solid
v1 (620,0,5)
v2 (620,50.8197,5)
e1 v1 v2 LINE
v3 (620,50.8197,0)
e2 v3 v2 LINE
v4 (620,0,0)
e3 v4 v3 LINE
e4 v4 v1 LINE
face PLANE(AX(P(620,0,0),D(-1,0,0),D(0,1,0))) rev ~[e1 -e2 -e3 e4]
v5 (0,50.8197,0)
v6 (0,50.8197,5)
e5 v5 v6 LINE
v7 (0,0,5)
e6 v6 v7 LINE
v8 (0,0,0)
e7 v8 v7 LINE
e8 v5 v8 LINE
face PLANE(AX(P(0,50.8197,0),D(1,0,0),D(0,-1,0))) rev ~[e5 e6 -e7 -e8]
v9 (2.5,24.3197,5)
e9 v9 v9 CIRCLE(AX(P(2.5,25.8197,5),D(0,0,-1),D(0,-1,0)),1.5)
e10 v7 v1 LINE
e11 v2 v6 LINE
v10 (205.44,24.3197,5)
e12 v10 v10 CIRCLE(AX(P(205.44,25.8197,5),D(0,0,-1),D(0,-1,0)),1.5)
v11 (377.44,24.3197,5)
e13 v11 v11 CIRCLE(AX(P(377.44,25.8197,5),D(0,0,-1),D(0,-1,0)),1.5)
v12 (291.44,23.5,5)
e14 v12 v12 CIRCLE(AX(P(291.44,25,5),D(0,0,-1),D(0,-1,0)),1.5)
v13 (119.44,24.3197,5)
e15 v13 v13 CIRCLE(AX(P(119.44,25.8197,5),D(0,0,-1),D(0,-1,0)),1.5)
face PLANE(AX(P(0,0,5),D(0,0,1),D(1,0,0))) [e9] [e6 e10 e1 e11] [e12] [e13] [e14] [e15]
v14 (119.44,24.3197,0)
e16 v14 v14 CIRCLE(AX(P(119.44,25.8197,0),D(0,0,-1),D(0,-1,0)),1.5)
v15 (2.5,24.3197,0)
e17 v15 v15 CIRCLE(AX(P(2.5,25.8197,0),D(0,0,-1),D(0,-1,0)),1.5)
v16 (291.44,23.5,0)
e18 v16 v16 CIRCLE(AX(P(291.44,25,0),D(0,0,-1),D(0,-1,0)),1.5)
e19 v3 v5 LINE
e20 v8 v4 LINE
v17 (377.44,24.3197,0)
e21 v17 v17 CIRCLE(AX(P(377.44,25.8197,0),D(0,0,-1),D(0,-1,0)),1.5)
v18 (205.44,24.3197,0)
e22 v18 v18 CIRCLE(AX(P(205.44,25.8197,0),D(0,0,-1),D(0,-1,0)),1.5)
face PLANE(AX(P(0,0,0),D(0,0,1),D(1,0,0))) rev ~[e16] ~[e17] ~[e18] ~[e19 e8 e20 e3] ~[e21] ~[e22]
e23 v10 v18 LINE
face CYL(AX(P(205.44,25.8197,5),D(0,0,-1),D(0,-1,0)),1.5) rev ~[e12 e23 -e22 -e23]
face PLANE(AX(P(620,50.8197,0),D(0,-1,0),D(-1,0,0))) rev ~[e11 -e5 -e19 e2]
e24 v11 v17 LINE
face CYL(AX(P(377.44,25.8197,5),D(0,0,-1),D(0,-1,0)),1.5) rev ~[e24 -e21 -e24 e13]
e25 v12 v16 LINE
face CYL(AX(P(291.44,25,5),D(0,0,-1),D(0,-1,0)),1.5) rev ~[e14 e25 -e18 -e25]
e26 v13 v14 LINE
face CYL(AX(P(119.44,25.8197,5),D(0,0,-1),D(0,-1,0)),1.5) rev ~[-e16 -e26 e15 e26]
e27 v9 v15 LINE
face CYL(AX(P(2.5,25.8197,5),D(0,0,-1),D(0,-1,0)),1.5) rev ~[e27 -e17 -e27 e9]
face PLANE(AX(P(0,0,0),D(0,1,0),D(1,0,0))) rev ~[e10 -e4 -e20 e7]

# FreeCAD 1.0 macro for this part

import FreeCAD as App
import Part
import Sketcher

V = App.Vector


def add_polygon(sketch, points):
    """Adds a closed chain of lines whose ends are joined by coincident constraints."""
    first, n = sketch.GeometryCount, len(points)
    for a, b in zip(points, points[1:] + points[:1]):
        sketch.addGeometry(Part.LineSegment(App.Vector(*a, 0), App.Vector(*b, 0)), False)
    for i in range(n):
        sketch.addConstraint(Sketcher.Constraint("Coincident", first + i, 2, first + (i + 1) % n, 1))

doc = App.newDocument("Part")
body = doc.addObject("PartDesign::Body", "Body")

# Sketch on XY plane
sketch1 = body.newObject("Sketcher::SketchObject", "Sketch")
sketch1.AttachmentSupport = (doc.getObject("XY_Plane"), [""])
sketch1.MapMode = "FlatFace"
add_polygon(sketch1, [(0, 50.8197), (0, 0), (620, 0), (620, 50.8197)])  # lines 0-3
sketch1.addConstraint(Sketcher.Constraint("Vertical", 0))
sketch1.addConstraint(Sketcher.Constraint("Horizontal", 1))
sketch1.addConstraint(Sketcher.Constraint("Vertical", 2))
sketch1.addConstraint(Sketcher.Constraint("Horizontal", 3))
sketch1.addConstraint(Sketcher.Constraint("Coincident", 0, 2, -1, 1))
sketch1.addConstraint(Sketcher.Constraint("DistanceX", 1, 1, 1, 2, 620.0))
sketch1.addConstraint(Sketcher.Constraint("DistanceY", 0, 2, 0, 1, 50.8197))
pad1 = body.newObject("PartDesign::Pad", "Pad")
pad1.Profile = sketch1
pad1.Length = 5

# Sketch on XY plane
sketch2 = body.newObject("Sketcher::SketchObject", "Sketch001")
sketch2.AttachmentSupport = (doc.getObject("XY_Plane"), [""])
sketch2.MapMode = "FlatFace"
sketch2.AttachmentOffset = App.Placement(V(0, 0, 5), App.Rotation())
sketch2.addGeometry(Part.Circle(V(2.5, 25.8197, 0), V(0, 0, 1), 1.5), False)
sketch2.addGeometry(Part.Circle(V(119.44, 25.8197, 0), V(0, 0, 1), 1.5), False)
sketch2.addGeometry(Part.Circle(V(205.44, 25.8197, 0), V(0, 0, 1), 1.5), False)
sketch2.addGeometry(Part.Circle(V(291.44, 25, 0), V(0, 0, 1), 1.5), False)
sketch2.addGeometry(Part.Circle(V(377.44, 25.8197, 0), V(0, 0, 1), 1.5), False)
sketch2.addConstraint(Sketcher.Constraint("Equal", 0, 1))
sketch2.addConstraint(Sketcher.Constraint("Equal", 1, 2))
sketch2.addConstraint(Sketcher.Constraint("Equal", 2, 3))
sketch2.addConstraint(Sketcher.Constraint("Equal", 3, 4))
sketch2.addConstraint(Sketcher.Constraint("Horizontal", 0, 3, 1, 3))
sketch2.addConstraint(Sketcher.Constraint("Horizontal", 1, 3, 2, 3))
sketch2.addConstraint(Sketcher.Constraint("Horizontal", 2, 3, 4, 3))
sketch2.addConstraint(Sketcher.Constraint("Diameter", 0, 3.0))
sketch2.addConstraint(Sketcher.Constraint("DistanceY", -1, 1, 3, 3, 25.0))
sketch2.addConstraint(Sketcher.Constraint("DistanceX", 1, 3, 2, 3, 86.0))
sketch2.addConstraint(Sketcher.Constraint("DistanceX", 2, 3, 3, 3, 86.0))
sketch2.addConstraint(Sketcher.Constraint("DistanceX", 3, 3, 4, 3, 86.0))
sketch2.addConstraint(Sketcher.Constraint("DistanceX", -1, 1, 0, 3, 2.5))
sketch2.addConstraint(Sketcher.Constraint("DistanceX", -1, 1, 1, 3, 119.44))
sketch2.addConstraint(Sketcher.Constraint("DistanceY", -1, 1, 0, 3, 25.8197))
doc.recompute()
hole = body.newObject("PartDesign::Hole", "Hole")
hole.Profile = sketch2
hole.ThreadType = "None"
hole.Diameter = 3
hole.DepthType = "ThroughAll"

doc.recompute()
